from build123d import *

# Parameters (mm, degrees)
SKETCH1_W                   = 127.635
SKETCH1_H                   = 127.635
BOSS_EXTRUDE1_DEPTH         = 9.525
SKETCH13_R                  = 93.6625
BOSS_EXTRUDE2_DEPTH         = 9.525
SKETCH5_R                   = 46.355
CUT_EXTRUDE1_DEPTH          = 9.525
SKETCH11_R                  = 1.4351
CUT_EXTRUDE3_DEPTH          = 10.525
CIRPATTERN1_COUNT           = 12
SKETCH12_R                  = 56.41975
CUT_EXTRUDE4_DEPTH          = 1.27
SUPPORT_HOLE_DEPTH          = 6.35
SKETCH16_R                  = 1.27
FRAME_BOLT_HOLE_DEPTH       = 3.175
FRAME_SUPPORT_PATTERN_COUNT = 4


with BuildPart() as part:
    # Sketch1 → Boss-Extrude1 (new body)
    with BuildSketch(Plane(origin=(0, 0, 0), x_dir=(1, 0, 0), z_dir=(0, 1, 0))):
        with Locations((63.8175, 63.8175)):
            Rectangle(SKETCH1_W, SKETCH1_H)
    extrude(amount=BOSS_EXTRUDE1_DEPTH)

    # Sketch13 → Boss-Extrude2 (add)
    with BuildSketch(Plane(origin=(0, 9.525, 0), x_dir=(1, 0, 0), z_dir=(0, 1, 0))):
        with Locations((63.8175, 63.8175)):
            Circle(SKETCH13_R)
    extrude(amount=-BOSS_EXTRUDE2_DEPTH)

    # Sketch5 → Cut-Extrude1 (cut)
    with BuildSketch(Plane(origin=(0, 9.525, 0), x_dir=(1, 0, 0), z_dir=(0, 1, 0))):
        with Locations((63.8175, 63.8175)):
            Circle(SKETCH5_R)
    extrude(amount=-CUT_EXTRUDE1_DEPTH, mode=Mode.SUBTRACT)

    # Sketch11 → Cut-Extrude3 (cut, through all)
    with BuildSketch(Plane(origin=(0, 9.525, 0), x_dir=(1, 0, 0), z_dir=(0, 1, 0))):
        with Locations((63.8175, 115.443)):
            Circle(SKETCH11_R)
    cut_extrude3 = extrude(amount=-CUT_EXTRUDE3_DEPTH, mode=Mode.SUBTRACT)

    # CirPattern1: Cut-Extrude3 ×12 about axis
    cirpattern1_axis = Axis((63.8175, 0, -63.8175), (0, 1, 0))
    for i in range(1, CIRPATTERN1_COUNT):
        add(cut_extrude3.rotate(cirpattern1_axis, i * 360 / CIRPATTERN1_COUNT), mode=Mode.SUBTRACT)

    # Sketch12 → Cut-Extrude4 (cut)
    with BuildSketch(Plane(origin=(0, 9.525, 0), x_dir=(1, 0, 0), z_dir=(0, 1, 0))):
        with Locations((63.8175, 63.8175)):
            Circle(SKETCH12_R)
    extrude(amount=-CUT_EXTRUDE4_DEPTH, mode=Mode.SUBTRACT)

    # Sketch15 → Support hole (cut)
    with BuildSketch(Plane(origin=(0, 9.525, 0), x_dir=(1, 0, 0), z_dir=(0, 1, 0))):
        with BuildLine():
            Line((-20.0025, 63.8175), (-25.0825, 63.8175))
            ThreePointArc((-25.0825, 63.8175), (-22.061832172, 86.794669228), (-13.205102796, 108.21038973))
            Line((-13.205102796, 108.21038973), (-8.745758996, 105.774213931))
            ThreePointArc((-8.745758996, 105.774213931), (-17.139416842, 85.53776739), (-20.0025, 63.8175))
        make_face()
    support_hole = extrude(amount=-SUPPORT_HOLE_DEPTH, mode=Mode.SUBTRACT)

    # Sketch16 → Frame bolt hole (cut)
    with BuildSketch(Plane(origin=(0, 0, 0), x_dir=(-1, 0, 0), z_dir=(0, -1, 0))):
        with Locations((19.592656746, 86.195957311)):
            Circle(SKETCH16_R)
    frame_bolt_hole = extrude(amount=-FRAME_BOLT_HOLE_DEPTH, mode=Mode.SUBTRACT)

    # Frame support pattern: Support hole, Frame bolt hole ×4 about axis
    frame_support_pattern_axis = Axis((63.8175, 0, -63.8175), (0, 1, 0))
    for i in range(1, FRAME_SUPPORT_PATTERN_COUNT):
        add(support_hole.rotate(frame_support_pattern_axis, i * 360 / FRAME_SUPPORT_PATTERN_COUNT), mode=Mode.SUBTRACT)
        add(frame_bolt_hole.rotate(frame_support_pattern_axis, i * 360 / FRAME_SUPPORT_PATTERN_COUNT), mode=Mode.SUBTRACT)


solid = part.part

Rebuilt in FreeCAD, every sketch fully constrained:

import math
import FreeCAD as App
import Part
import Sketcher
from FreeCAD import Vector
Q = App.Units.Quantity

doc = App.newDocument("Part")
params = doc.addObject("Spreadsheet::Sheet", "Params")
for row, (alias, value) in enumerate([
    ("sketch1_width", "5.025 in"),
    ("pad1_length", "0.375 in"),
    ("sketch2_diameter", "7.375 in"),
    ("pad2_length", "0.375 in"),
    ("sketch3_diameter", "3.65 in"),
    ("pocket1_length", "0.375 in"),
    ("sketch4_diameter", "0.113 in"),
    ("pocket3_length", "0.05 in"),
    ("sketch6_radius", "3.3 in"),
    ("sketch6_radius2", "3.5 in"),
    ("pocket4_length", "0.25 in"),
    ("sketch7_diameter", "0.1 in"),
    ("pocket5_length", "0.125 in"),
], start=1):
    params.set(f"A{row}", alias)
    params.set(f"B{row}", "=" + value)
    params.setAlias(f"B{row}", alias)

body = doc.addObject("PartDesign::Body", "Body")

# Sketch on XZ plane
sketch1 = body.newObject("Sketcher::SketchObject", "Sketch")
sketch1.AttachmentSupport = (doc.getObject("XZ_Plane"), [""])
sketch1.MapMode = "FlatFace"
sketch1.addGeometry(Part.LineSegment(Vector(0, -128, 0), Vector(0, 0, 0)), False)
sketch1.addGeometry(Part.LineSegment(Vector(0, 0, 0), Vector(128, 0, 0)), False)
sketch1.addGeometry(Part.LineSegment(Vector(128, 0, 0), Vector(128, -128, 0)), False)
sketch1.addGeometry(Part.LineSegment(Vector(128, -128, 0), Vector(0, -128, 0)), False)
sketch1.addConstraint(Sketcher.Constraint("Coincident", 0, 2, 1, 1))
sketch1.addConstraint(Sketcher.Constraint("Coincident", 1, 2, 2, 1))
sketch1.addConstraint(Sketcher.Constraint("Coincident", 2, 2, 3, 1))
sketch1.addConstraint(Sketcher.Constraint("Coincident", 3, 2, 0, 1))
sketch1.addConstraint(Sketcher.Constraint("Vertical", 0))
sketch1.addConstraint(Sketcher.Constraint("Horizontal", 1))
sketch1.addConstraint(Sketcher.Constraint("Vertical", 2))
sketch1.addConstraint(Sketcher.Constraint("Horizontal", 3))
sketch1.addConstraint(Sketcher.Constraint("Coincident", 0, 2, -1, 1))
sketch1.addConstraint(Sketcher.Constraint("Equal", 3, 0))
sketch1.addConstraint(Sketcher.Constraint("DistanceX", 1, 1, 1, 2, Q("5.025 in")))
sketch1.setExpression("Constraints[10]", "Params.sketch1_width")
pad1 = body.newObject("PartDesign::Pad", "Pad")
pad1.Profile = sketch1
pad1.setExpression("Length", "Params.pad1_length")
pad1.Reversed = True

# Sketch on XZ plane
sketch2 = body.newObject("Sketcher::SketchObject", "Sketch001")
sketch2.AttachmentSupport = (doc.getObject("XZ_Plane"), [""])
sketch2.MapMode = "FlatFace"
sketch2.AttachmentOffset = App.Placement(Vector(0, 0, -0.375 * 25.4), App.Rotation())
sketch2.addGeometry(Part.Circle(Vector(64, -64, 0), Vector(0, 0, 1), 94), False)
sketch2.addConstraint(Sketcher.Constraint("Diameter", 0, Q("7.375 in")))
sketch2.addConstraint(Sketcher.Constraint("DistanceX", -1, 1, 0, 3, Q("2.5125 in")))
sketch2.addConstraint(Sketcher.Constraint("DistanceY", 0, 3, -1, 1, Q("2.5125 in")))
sketch2.setExpression("Constraints[0]", "Params.sketch2_diameter")
pad2 = body.newObject("PartDesign::Pad", "Pad001")
pad2.Profile = sketch2
pad2.setExpression("Length", "Params.pad2_length")

# Sketch on XZ plane
sketch3 = body.newObject("Sketcher::SketchObject", "Sketch002")
sketch3.AttachmentSupport = (doc.getObject("XZ_Plane"), [""])
sketch3.MapMode = "FlatFace"
sketch3.AttachmentOffset = App.Placement(Vector(0, 0, -0.375 * 25.4), App.Rotation())
sketch3.addGeometry(Part.Circle(Vector(64, -64, 0), Vector(0, 0, 1), 46), False)
sketch3.addConstraint(Sketcher.Constraint("Diameter", 0, Q("3.65 in")))
sketch3.addConstraint(Sketcher.Constraint("DistanceX", -1, 1, 0, 3, Q("2.5125 in")))
sketch3.addConstraint(Sketcher.Constraint("DistanceY", 0, 3, -1, 1, Q("2.5125 in")))
sketch3.setExpression("Constraints[0]", "Params.sketch3_diameter")
pocket1 = body.newObject("PartDesign::Pocket", "Pocket")
pocket1.Profile = sketch3
pocket1.setExpression("Length", "Params.pocket1_length")
pocket1.Reversed = True

# Sketch on XZ plane
sketch4 = body.newObject("Sketcher::SketchObject", "Sketch003")
sketch4.AttachmentSupport = (doc.getObject("XZ_Plane"), [""])
sketch4.MapMode = "FlatFace"
sketch4.AttachmentOffset = App.Placement(Vector(0, 0, -0.375 * 25.4), App.Rotation())
sketch4.addGeometry(Part.Circle(Vector(63.8, -115.4, 0), Vector(0, 0, 1), 1.4), False)
sketch4.addConstraint(Sketcher.Constraint("Diameter", 0, Q("0.113 in")))
sketch4.addConstraint(Sketcher.Constraint("DistanceY", 0, 3, -1, 1, Q("4.545 in")))
sketch4.addConstraint(Sketcher.Constraint("DistanceX", -1, 1, 0, 3, Q("2.5125 in")))
sketch4.setExpression("Constraints[0]", "Params.sketch4_diameter")
pocket2 = body.newObject("PartDesign::Pocket", "Pocket001")
pocket2.Profile = sketch4
pocket2.Type = "ThroughAll"
pocket2.Reversed = True
doc.recompute()

datumline = body.newObject("PartDesign::Line", "DatumLine")
datumline.Placement = App.Placement(Vector(63.8175, 0, -63.8175), App.Rotation(Vector(0, 0, 1), Vector(0, 1, 0)))
polarpattern = body.newObject("PartDesign::PolarPattern", "PolarPattern")
polarpattern.Originals = [pocket2]
polarpattern.Axis = (datumline, [""])
polarpattern.Angle = 360
polarpattern.Occurrences = 12
body.Tip = polarpattern

# Sketch on XZ plane
sketch5 = body.newObject("Sketcher::SketchObject", "Sketch004")
sketch5.AttachmentSupport = (doc.getObject("XZ_Plane"), [""])
sketch5.MapMode = "FlatFace"
sketch5.AttachmentOffset = App.Placement(Vector(0, 0, -0.375 * 25.4), App.Rotation())
sketch5.addGeometry(Part.Circle(Vector(64, -64, 0), Vector(0, 0, 1), 56), False)
sketch5.addConstraint(Sketcher.Constraint("Diameter", 0, Q("4.4425 in")))
sketch5.addConstraint(Sketcher.Constraint("DistanceX", -1, 1, 0, 3, Q("2.5125 in")))
sketch5.addConstraint(Sketcher.Constraint("DistanceY", 0, 3, -1, 1, Q("2.5125 in")))
pocket3 = body.newObject("PartDesign::Pocket", "Pocket002")
pocket3.Profile = sketch5
pocket3.setExpression("Length", "Params.pocket3_length")
pocket3.Reversed = True

# Sketch on XZ plane
sketch6 = body.newObject("Sketcher::SketchObject", "Sketch005")
sketch6.AttachmentSupport = (doc.getObject("XZ_Plane"), [""])
sketch6.MapMode = "FlatFace"
sketch6.AttachmentOffset = App.Placement(Vector(0, 0, -0.375 * 25.4), App.Rotation())
sketch6.addGeometry(Part.LineSegment(Vector(-25, -64, 0), Vector(-20, -64, 0)), False)
sketch6.addGeometry(Part.ArcOfCircle(Part.Circle(Vector(64, -64, 0), Vector(0, 0, 1), 84), math.radians(180), math.radians(210)), False)
sketch6.addGeometry(Part.LineSegment(Vector(-9, -106, 0), Vector(-13, -108, 0)), False)
sketch6.addGeometry(Part.ArcOfCircle(Part.Circle(Vector(64, -64, 0), Vector(0, 0, 1), 89), math.radians(180), math.radians(210)), False)
sketch6.addConstraint(Sketcher.Constraint("Coincident", 0, 2, 1, 1))
sketch6.addConstraint(Sketcher.Constraint("Coincident", 1, 2, 2, 1))
sketch6.addConstraint(Sketcher.Constraint("Coincident", 2, 2, 3, 2))
sketch6.addConstraint(Sketcher.Constraint("Coincident", 3, 1, 0, 1))
sketch6.addConstraint(Sketcher.Constraint("Horizontal", 0))
sketch6.addConstraint(Sketcher.Constraint("Coincident", 3, 3, 1, 3))
sketch6.addConstraint(Sketcher.Constraint("Horizontal", 3, 3, 0, 2))
sketch6.addConstraint(Sketcher.Constraint("Radius", 1, Q("3.3 in")))
sketch6.addConstraint(Sketcher.Constraint("Radius", 3, Q("3.5 in")))
sketch6.addConstraint(Sketcher.Constraint("DistanceX", -1, 1, 1, 3, Q("2.5125 in")))
sketch6.addConstraint(Sketcher.Constraint("DistanceY", 1, 3, -1, 1, Q("2.5125 in")))
sketch6.addConstraint(Sketcher.Constraint("DistanceX", 1, 2, -1, 1, Q("8.745759 mm")))
sketch6.addConstraint(Sketcher.Constraint("DistanceY", 2, 2, -1, 1, Q("108.21039 mm")))
sketch6.setExpression("Constraints[7]", "Params.sketch6_radius")
sketch6.setExpression("Constraints[8]", "Params.sketch6_radius2")
pocket4 = body.newObject("PartDesign::Pocket", "Pocket003")
pocket4.Profile = sketch6
pocket4.setExpression("Length", "Params.pocket4_length")
pocket4.Reversed = True

# Sketch on XZ plane
sketch7 = body.newObject("Sketcher::SketchObject", "Sketch006")
sketch7.AttachmentSupport = (doc.getObject("XZ_Plane"), [""])
sketch7.MapMode = "FlatFace"
sketch7.addGeometry(Part.Circle(Vector(-19.6, -86.2, 0), Vector(0, 0, 1), 1.3), False)
sketch7.addConstraint(Sketcher.Constraint("Diameter", 0, Q("0.1 in")))
sketch7.addConstraint(Sketcher.Constraint("DistanceX", 0, 3, -1, 1, Q("19.592657 mm")))
sketch7.addConstraint(Sketcher.Constraint("DistanceY", 0, 3, -1, 1, Q("86.195957 mm")))
sketch7.setExpression("Constraints[0]", "Params.sketch7_diameter")
pocket5 = body.newObject("PartDesign::Pocket", "Pocket004")
pocket5.Profile = sketch7
pocket5.setExpression("Length", "Params.pocket5_length")
doc.recompute()

datumline2 = body.newObject("PartDesign::Line", "DatumLine001")
datumline2.Placement = App.Placement(Vector(63.8175, 0, -63.8175), App.Rotation(Vector(0, 0, 1), Vector(0, 1, 0)))
polarpattern2 = body.newObject("PartDesign::PolarPattern", "PolarPattern001")
polarpattern2.Originals = [pocket4, pocket5]
polarpattern2.Axis = (datumline2, [""])
polarpattern2.Angle = 360
polarpattern2.Occurrences = 4
body.Tip = polarpattern2

doc.recompute()
